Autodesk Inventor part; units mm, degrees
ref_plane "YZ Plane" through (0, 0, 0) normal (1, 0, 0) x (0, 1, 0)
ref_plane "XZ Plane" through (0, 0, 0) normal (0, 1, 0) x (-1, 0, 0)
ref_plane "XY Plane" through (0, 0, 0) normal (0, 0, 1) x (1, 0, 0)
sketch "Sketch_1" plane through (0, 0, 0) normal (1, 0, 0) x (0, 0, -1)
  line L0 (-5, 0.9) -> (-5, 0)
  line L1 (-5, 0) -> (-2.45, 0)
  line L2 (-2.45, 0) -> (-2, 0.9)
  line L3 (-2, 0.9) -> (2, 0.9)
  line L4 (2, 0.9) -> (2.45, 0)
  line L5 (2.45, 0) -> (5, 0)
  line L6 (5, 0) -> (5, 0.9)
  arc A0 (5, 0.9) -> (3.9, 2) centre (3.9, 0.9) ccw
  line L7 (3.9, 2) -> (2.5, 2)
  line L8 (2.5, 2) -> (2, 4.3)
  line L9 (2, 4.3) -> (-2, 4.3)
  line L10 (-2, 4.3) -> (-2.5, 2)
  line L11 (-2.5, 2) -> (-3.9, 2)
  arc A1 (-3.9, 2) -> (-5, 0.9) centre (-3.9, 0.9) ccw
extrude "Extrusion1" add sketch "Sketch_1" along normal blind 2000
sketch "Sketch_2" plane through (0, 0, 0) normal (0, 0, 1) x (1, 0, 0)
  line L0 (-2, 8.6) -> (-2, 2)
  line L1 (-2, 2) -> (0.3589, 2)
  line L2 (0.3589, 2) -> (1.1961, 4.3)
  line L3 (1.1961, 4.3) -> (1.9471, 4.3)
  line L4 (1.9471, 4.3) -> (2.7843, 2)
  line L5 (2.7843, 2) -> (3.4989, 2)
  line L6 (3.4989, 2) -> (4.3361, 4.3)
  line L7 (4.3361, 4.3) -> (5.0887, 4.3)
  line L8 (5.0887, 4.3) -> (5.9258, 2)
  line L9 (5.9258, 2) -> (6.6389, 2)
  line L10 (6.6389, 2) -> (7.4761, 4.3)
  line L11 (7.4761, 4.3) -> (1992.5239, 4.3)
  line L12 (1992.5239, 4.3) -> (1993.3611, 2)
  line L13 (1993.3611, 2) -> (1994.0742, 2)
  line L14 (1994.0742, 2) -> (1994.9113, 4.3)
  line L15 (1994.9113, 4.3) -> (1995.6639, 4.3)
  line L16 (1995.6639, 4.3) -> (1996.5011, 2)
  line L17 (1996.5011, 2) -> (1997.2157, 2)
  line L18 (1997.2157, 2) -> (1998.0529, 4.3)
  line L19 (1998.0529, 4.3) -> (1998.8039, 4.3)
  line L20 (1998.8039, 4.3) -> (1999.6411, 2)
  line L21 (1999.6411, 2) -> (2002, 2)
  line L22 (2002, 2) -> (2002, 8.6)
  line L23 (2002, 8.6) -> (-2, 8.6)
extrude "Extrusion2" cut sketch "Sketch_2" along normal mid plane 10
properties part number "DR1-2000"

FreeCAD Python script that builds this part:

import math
import FreeCAD as App
import Part
import Sketcher
from FreeCAD import Vector
Q = App.Units.Quantity


def add_polygon(sketch, points):
    """Adds a closed chain of lines whose ends are joined by coincident constraints."""
    first, n = sketch.GeometryCount, len(points)
    for a, b in zip(points, points[1:] + points[:1]):
        sketch.addGeometry(Part.LineSegment(App.Vector(*a, 0), App.Vector(*b, 0)), False)
    for i in range(n):
        sketch.addConstraint(Sketcher.Constraint("Coincident", first + i, 2, first + (i + 1) % n, 1))

doc = App.newDocument("Part")
body = doc.addObject("PartDesign::Body", "Body")

sketch1 = doc.addObject("Sketcher::SketchObject", "Sketch")
body.addObject(sketch1)
sketch1.AttachmentSupport = (doc.YZ_Plane, [""])
sketch1.MapMode = "FlatFace"
sketch1.addGeometry([
    Part.ArcOfCircle(Part.Circle(Vector(0.9, 3.9, 0), Vector(0, 0, 1), 1.1), math.radians(0), math.radians(90)),
    Part.LineSegment(Vector(0.9, 5, 0), Vector(0, 5, 0)),
    Part.LineSegment(Vector(0, 5, 0), Vector(0, 2.5, 0)),
    Part.LineSegment(Vector(0, 2.5, 0), Vector(0.9, 2, 0)),
    Part.LineSegment(Vector(0.9, 2, 0), Vector(0.9, -2, 0)),
    Part.LineSegment(Vector(0.9, -2, 0), Vector(0, -2.5, 0)),
    Part.LineSegment(Vector(0, -2.5, 0), Vector(0, -5, 0)),
    Part.LineSegment(Vector(0, -5, 0), Vector(0.9, -5, 0)),
    Part.ArcOfCircle(Part.Circle(Vector(0.9, -3.9, 0), Vector(0, 0, 1), 1.1), math.radians(-90), math.radians(0)),
    Part.LineSegment(Vector(2, -3.9, 0), Vector(2, -2.5, 0)),
    Part.LineSegment(Vector(2, -2.5, 0), Vector(4.3, -2, 0)),
    Part.LineSegment(Vector(4.3, -2, 0), Vector(4.3, 2, 0)),
    Part.LineSegment(Vector(4.3, 2, 0), Vector(2, 2.5, 0)),
    Part.LineSegment(Vector(2, 2.5, 0), Vector(2, 3.9, 0)),
], False)
sketch1.addConstraint([
    Sketcher.Constraint("Tangent", 0, 2, 1, 1),
    Sketcher.Constraint("Coincident", 1, 2, 2, 1),
    Sketcher.Constraint("Coincident", 2, 2, 3, 1),
    Sketcher.Constraint("Coincident", 3, 2, 4, 1),
    Sketcher.Constraint("Coincident", 4, 2, 5, 1),
    Sketcher.Constraint("Coincident", 5, 2, 6, 1),
    Sketcher.Constraint("Coincident", 6, 2, 7, 1),
    Sketcher.Constraint("Tangent", 7, 2, 8, 1),
    Sketcher.Constraint("Tangent", 8, 2, 9, 1),
    Sketcher.Constraint("Coincident", 9, 2, 10, 1),
    Sketcher.Constraint("Coincident", 10, 2, 11, 1),
    Sketcher.Constraint("Coincident", 11, 2, 12, 1),
    Sketcher.Constraint("Coincident", 12, 2, 13, 1),
    Sketcher.Constraint("Tangent", 13, 2, 0, 1),
    Sketcher.Constraint("Horizontal", 1),
    Sketcher.Constraint("Vertical", 2),
    Sketcher.Constraint("Vertical", 4),
    Sketcher.Constraint("Vertical", 6),
    Sketcher.Constraint("Horizontal", 7),
    Sketcher.Constraint("Vertical", 9),
    Sketcher.Constraint("Vertical", 11),
    Sketcher.Constraint("Vertical", 13),
    Sketcher.Constraint("Equal", 0, 8),
    Sketcher.Constraint("Symmetric", 2, 2, 5, 2, -1, 1),
    Sketcher.Constraint("Symmetric", 0, 3, 8, 3, -1),
    Sketcher.Constraint("PointOnObject", 1, 2, -2),
    Sketcher.Constraint("Horizontal", 4, 2, 10, 2),
    Sketcher.Constraint("Horizontal", 3, 2, 11, 2),
    Sketcher.Constraint("Vertical", 0, 2, 3, 2),
    Sketcher.Constraint("Equal", 9, 13),
    Sketcher.Constraint("Equal", 3, 5),
    Sketcher.Constraint("Radius", 0, Q("1.1 mm")),
    Sketcher.Constraint("DistanceY", 4, 2, 4, 1, Q("4 mm")),
    Sketcher.Constraint("DistanceX", 1, 2, 1, 1, Q("0.9 mm")),
    Sketcher.Constraint("DistanceY", 9, 1, 9, 2, Q("1.4 mm")),
    Sketcher.Constraint("DistanceY", -1, 1, 0, 2, Q("5 mm")),
    Sketcher.Constraint("DistanceY", 2, 2, 2, 1, Q("2.55 mm")),
    Sketcher.Constraint("DistanceX", -1, 1, 10, 2, Q("4.3 mm")),
])
pad1 = doc.addObject("PartDesign::Pad", "Pad")
body.addObject(pad1)
pad1.Profile = sketch1
pad1.Length = 2000

sketch2 = doc.addObject("Sketcher::SketchObject", "Sketch001")
body.addObject(sketch2)
sketch2.AttachmentSupport = (doc.XY_Plane, [""])
sketch2.MapMode = "FlatFace"
add_polygon(sketch2, [(2002, 8.6), (-2, 8.6), (-2, 2), (0.4, 2), (1.2, 4.3), (1.9, 4.3), (2.8, 2), (3.5, 2), (4.3, 4.3), (5.1, 4.3), (5.9, 2), (6.6, 2), (7.5, 4.3), (1992.5, 4.3), (1993.4, 2), (1994.1, 2), (1994.9, 4.3), (1995.7, 4.3), (1996.5, 2), (1997.2, 2), (1998.1, 4.3), (1998.8, 4.3), (1999.6, 2), (2002, 2)])
sketch2.addConstraint([
    Sketcher.Constraint("Horizontal", 0),
    Sketcher.Constraint("Vertical", 1),
    Sketcher.Constraint("Horizontal", 2),
    Sketcher.Constraint("Horizontal", 4),
    Sketcher.Constraint("Horizontal", 6),
    Sketcher.Constraint("Horizontal", 8),
    Sketcher.Constraint("Horizontal", 10),
    Sketcher.Constraint("Horizontal", 12),
    Sketcher.Constraint("Horizontal", 14),
    Sketcher.Constraint("Horizontal", 16),
    Sketcher.Constraint("Horizontal", 18),
    Sketcher.Constraint("Horizontal", 20),
    Sketcher.Constraint("Horizontal", 22),
    Sketcher.Constraint("Vertical", 23),
    Sketcher.Constraint("Parallel", 3, 7),
    Sketcher.Constraint("Parallel", 5, 9),
    Sketcher.Constraint("Parallel", 7, 11),
    Sketcher.Constraint("Parallel", 9, 13),
    Sketcher.Constraint("Parallel", 11, 15),
    Sketcher.Constraint("Parallel", 13, 17),
    Sketcher.Constraint("Parallel", 15, 19),
    Sketcher.Constraint("Parallel", 17, 21),
    Sketcher.Constraint("Horizontal", 2, 2, 5, 2),
    Sketcher.Constraint("Horizontal", 4, 2, 7, 2),
    Sketcher.Constraint("Horizontal", 6, 2, 9, 2),
    Sketcher.Constraint("Horizontal", 8, 2, 11, 2),
    Sketcher.Constraint("Horizontal", 10, 2, 13, 2),
    Sketcher.Constraint("Horizontal", 12, 2, 15, 2),
    Sketcher.Constraint("Horizontal", 14, 2, 17, 2),
    Sketcher.Constraint("Horizontal", 16, 2, 19, 2),
    Sketcher.Constraint("Horizontal", 18, 2, 21, 2),
    Sketcher.Constraint("Equal", 10, 14),
    Sketcher.Constraint("Equal", 8, 16),
    Sketcher.Constraint("Equal", 6, 18),
    Sketcher.Constraint("Equal", 4, 20),
    Sketcher.Constraint("Equal", 2, 22),
    Sketcher.Constraint("Equal", 3, 5),
    Sketcher.Constraint("DistanceX", 0, 2, 0, 1, Q("2004 mm")),
    Sketcher.Constraint("Angle", 9, Q("-70.0007 deg")),
    Sketcher.Constraint("DistanceY", 1, 2, 1, 1, Q("6.6 mm")),
    Sketcher.Constraint("DistanceX", 0, 2, -1, 1, Q("2 mm")),
    Sketcher.Constraint("DistanceY", -1, 1, 1, 2, Q("2 mm")),
    Sketcher.Constraint("DistanceY", -1, 1, 3, 2, Q("4.3 mm")),
    Sketcher.Constraint("DistanceX", 2, 1, 2, 2, Q("2.359 mm")),
    Sketcher.Constraint("DistanceX", 4, 1, 4, 2, Q("0.751 mm")),
    Sketcher.Constraint("DistanceX", 10, 1, 10, 2, Q("0.713 mm")),
    Sketcher.Constraint("DistanceX", 2, 2, 6, 2, Q("3.14 mm")),
    Sketcher.Constraint("DistanceX", 6, 2, 10, 2, Q("3.14 mm")),
])
pocket1 = doc.addObject("PartDesign::Pocket", "Pocket")
body.addObject(pocket1)
pocket1.Profile = sketch2
pocket1.Length = 10
pocket1.Midplane = True

doc.recompute()
